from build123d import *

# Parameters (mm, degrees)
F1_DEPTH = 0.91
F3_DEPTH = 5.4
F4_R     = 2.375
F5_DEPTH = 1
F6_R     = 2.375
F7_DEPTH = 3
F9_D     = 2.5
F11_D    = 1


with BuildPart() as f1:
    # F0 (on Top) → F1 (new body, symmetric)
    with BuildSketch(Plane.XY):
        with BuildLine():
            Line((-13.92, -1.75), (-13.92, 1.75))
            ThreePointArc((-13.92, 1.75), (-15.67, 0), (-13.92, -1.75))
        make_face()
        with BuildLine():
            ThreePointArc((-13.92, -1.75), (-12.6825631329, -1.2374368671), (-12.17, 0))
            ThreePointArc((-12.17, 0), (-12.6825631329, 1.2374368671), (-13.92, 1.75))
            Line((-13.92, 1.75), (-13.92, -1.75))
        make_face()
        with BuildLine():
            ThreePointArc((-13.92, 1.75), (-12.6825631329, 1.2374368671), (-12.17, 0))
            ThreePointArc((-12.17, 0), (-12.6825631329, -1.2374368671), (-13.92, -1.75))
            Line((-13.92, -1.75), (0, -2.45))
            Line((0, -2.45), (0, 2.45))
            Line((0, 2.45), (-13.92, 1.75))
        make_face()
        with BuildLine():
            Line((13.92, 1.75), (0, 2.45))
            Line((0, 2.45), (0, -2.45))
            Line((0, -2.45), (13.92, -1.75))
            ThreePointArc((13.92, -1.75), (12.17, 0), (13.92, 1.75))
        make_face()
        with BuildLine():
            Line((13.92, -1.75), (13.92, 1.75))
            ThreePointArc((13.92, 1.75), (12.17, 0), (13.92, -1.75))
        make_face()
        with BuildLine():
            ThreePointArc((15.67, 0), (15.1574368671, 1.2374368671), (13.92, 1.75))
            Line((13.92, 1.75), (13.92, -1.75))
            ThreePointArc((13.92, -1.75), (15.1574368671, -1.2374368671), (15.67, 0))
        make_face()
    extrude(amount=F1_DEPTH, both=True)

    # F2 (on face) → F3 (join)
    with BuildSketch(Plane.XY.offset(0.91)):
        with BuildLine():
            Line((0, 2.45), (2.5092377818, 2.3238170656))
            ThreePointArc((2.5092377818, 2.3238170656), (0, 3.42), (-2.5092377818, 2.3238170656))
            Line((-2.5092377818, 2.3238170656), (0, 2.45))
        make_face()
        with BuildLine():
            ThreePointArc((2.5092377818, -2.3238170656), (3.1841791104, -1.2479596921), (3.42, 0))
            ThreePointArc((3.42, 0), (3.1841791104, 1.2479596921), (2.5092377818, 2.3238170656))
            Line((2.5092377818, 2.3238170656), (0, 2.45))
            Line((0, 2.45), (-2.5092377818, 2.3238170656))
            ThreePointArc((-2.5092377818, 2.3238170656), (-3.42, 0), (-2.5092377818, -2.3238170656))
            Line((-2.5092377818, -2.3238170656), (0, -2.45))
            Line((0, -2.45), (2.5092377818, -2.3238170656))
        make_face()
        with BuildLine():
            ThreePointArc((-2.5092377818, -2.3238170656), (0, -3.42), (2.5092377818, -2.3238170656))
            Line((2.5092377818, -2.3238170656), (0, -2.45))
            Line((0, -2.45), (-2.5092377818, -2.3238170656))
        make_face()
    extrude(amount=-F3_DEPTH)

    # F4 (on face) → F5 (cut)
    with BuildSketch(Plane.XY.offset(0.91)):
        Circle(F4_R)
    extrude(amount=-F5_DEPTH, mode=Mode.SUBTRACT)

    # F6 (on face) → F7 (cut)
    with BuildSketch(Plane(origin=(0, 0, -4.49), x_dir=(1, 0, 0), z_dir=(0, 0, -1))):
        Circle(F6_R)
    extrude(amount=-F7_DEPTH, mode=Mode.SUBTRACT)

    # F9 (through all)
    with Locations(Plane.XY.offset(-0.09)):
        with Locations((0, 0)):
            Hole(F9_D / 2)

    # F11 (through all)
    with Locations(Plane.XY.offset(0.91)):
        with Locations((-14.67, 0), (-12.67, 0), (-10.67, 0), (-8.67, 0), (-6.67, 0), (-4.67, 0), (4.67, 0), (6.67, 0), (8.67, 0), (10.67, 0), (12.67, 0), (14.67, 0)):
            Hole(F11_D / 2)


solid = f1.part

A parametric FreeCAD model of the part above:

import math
import FreeCAD as App
import Part
import Sketcher
from FreeCAD import Vector
Q = App.Units.Quantity

doc = App.newDocument("Part")
body = doc.addObject("PartDesign::Body", "Body")

sketch1 = body.newObject("Sketcher::SketchObject", "Sketch")
sketch1.AttachmentSupport = (doc.getObject("XY_Plane"), [""])
sketch1.MapMode = "FlatFace"
sketch1.addGeometry([
    Part.ArcOfCircle(Part.Circle(Vector(-13.92, 0, 0), Vector(0, 0, 1), 1.75), math.radians(90), math.radians(270)),
    Part.LineSegment(Vector(-13.92, -1.75, 0), Vector(0, -2.45, 0)),
    Part.LineSegment(Vector(0, -2.45, 0), Vector(13.92, -1.75, 0)),
    Part.ArcOfCircle(Part.Circle(Vector(13.92, 0, 0), Vector(0, 0, 1), 1.75), math.radians(-90), math.radians(0)),
    Part.ArcOfCircle(Part.Circle(Vector(13.92, 0, 0), Vector(0, 0, 1), 1.75), math.radians(0), math.radians(90)),
    Part.LineSegment(Vector(13.92, 1.75, 0), Vector(0, 2.45, 0)),
    Part.LineSegment(Vector(0, 2.45, 0), Vector(-13.92, 1.75, 0)),
], False)
sketch1.addConstraint([
    Sketcher.Constraint("Coincident", 0, 2, 1, 1),
    Sketcher.Constraint("Coincident", 1, 2, 2, 1),
    Sketcher.Constraint("Coincident", 2, 2, 3, 1),
    Sketcher.Constraint("Tangent", 3, 2, 4, 1),
    Sketcher.Constraint("Coincident", 4, 2, 5, 1),
    Sketcher.Constraint("Coincident", 5, 2, 6, 1),
    Sketcher.Constraint("Coincident", 6, 2, 0, 1),
    Sketcher.Constraint("Equal", 0, 3),
    Sketcher.Constraint("Equal", 3, 4),
    Sketcher.Constraint("Symmetric", 0, 3, 3, 3, -1, 1),
    Sketcher.Constraint("Symmetric", 1, 2, 5, 2, -1, 1),
    Sketcher.Constraint("Symmetric", 0, 2, 2, 2, -2),
    Sketcher.Constraint("PointOnObject", 1, 2, -2),
    Sketcher.Constraint("PointOnObject", 3, 2, -1),
    Sketcher.Constraint("Parallel", 1, 5),
    Sketcher.Constraint("Parallel", 2, 6),
    Sketcher.Constraint("Vertical", 4, 3, 2, 2),
    Sketcher.Constraint("Radius", 0, Q("1.75 mm")),
    Sketcher.Constraint("DistanceY", 1, 2, 0, 2, Q("0.7 mm")),
    Sketcher.Constraint("DistanceX", 0, 3, -1, 1, Q("13.92 mm")),
])
pad1 = body.newObject("PartDesign::Pad", "Pad")
pad1.Profile = sketch1
pad1.Length = 1.82
pad1.Midplane = True

sketch2 = body.newObject("Sketcher::SketchObject", "Sketch001")
sketch2.AttachmentSupport = (doc.getObject("XY_Plane"), [""])
sketch2.MapMode = "FlatFace"
sketch2.AttachmentOffset = App.Placement(Vector(0, 0, 0.91), App.Rotation())
sketch2.addGeometry([
    Part.ArcOfCircle(Part.Circle(Vector(0, 0, 0), Vector(0, 0, 1), 3.42), math.radians(42.802918), math.radians(137.197082)),
    Part.ArcOfCircle(Part.Circle(Vector(0, 0, 0), Vector(0, 0, 1), 3.42), math.radians(137.197082), math.radians(222.802918)),
    Part.ArcOfCircle(Part.Circle(Vector(0, 0, 0), Vector(0, 0, 1), 3.42), math.radians(-137.197082), math.radians(-42.802918)),
    Part.ArcOfCircle(Part.Circle(Vector(0, 0, 0), Vector(0, 0, 1), 3.42), math.radians(-42.802918), math.radians(0)),
    Part.ArcOfCircle(Part.Circle(Vector(0, 0, 0), Vector(0, 0, 1), 3.42), math.radians(0), math.radians(42.802918)),
], False)
sketch2.addConstraint([
    Sketcher.Constraint("Tangent", 0, 2, 1, 1),
    Sketcher.Constraint("Tangent", 1, 2, 2, 1),
    Sketcher.Constraint("Tangent", 2, 2, 3, 1),
    Sketcher.Constraint("Tangent", 3, 2, 4, 1),
    Sketcher.Constraint("Tangent", 4, 2, 0, 1),
    Sketcher.Constraint("Coincident", 0, 3, -1, 1),
    Sketcher.Constraint("Coincident", 2, 3, -1, 1),
    Sketcher.Constraint("PointOnObject", 3, 2, -1),
    Sketcher.Constraint("Horizontal", 1, 2, 2, 2),
    Sketcher.Constraint("Horizontal", 0, 2, 4, 2),
    Sketcher.Constraint("Vertical", 0, 2, 1, 2),
    Sketcher.Constraint("Radius", 0, Q("3.42 mm")),
    Sketcher.Constraint("DistanceX", 0, 2, -1, 1, Q("2.509238 mm")),
])
pad2 = body.newObject("PartDesign::Pad", "Pad001")
pad2.Profile = sketch2
pad2.Length = 5.4
pad2.Reversed = True

sketch3 = body.newObject("Sketcher::SketchObject", "Sketch002")
sketch3.AttachmentSupport = (doc.getObject("XY_Plane"), [""])
sketch3.MapMode = "FlatFace"
sketch3.AttachmentOffset = App.Placement(Vector(0, 0, 0.91), App.Rotation())
sketch3.addGeometry(Part.Circle(Vector(0, 0, 0), Vector(0, 0, 1), 2.375), False)
sketch3.addConstraint([
    Sketcher.Constraint("Coincident", 0, 3, -1, 1),
    Sketcher.Constraint("Diameter", 0, Q("4.75 mm")),
])
pocket1 = body.newObject("PartDesign::Pocket", "Pocket")
pocket1.Profile = sketch3
pocket1.Length = 1

sketch4 = body.newObject("Sketcher::SketchObject", "Sketch003")
sketch4.AttachmentSupport = (doc.getObject("XY_Plane"), [""])
sketch4.MapMode = "FlatFace"
sketch4.AttachmentOffset = App.Placement(Vector(0, 0, -4.49), App.Rotation())
sketch4.addGeometry(Part.Circle(Vector(0, 0, 0), Vector(0, 0, 1), 2.375), False)
sketch4.addConstraint([
    Sketcher.Constraint("Coincident", 0, 3, -1, 1),
    Sketcher.Constraint("Diameter", 0, Q("4.75 mm")),
])
pocket2 = body.newObject("PartDesign::Pocket", "Pocket001")
pocket2.Profile = sketch4
pocket2.Length = 3
pocket2.Reversed = True

sketch5 = body.newObject("Sketcher::SketchObject", "Sketch004")
sketch5.AttachmentSupport = (doc.getObject("XY_Plane"), [""])
sketch5.MapMode = "FlatFace"
sketch5.AttachmentOffset = App.Placement(Vector(0, 0, -0.09), App.Rotation())
sketch5.addGeometry(Part.Circle(Vector(0, 0, 0), Vector(0, 0, 1), 1.25), False)
sketch5.addConstraint([
    Sketcher.Constraint("Coincident", 0, 3, -1, 1),
    Sketcher.Constraint("Diameter", 0, Q("2.5 mm")),
])
doc.recompute()
hole = body.newObject("PartDesign::Hole", "Hole")
hole.Profile = sketch5
hole.ThreadType = "None"
hole.Diameter = 2.5
hole.DepthType = "ThroughAll"

sketch6 = body.newObject("Sketcher::SketchObject", "Sketch005")
sketch6.AttachmentSupport = (doc.getObject("XY_Plane"), [""])
sketch6.MapMode = "FlatFace"
sketch6.AttachmentOffset = App.Placement(Vector(0, 0, 0.91), App.Rotation())
sketch6.addGeometry([
    Part.Circle(Vector(-14.67, 0, 0), Vector(0, 0, 1), 0.5),
    Part.Circle(Vector(-12.67, 0, 0), Vector(0, 0, 1), 0.5),
    Part.Circle(Vector(-10.67, 0, 0), Vector(0, 0, 1), 0.5),
    Part.Circle(Vector(-8.67, 0, 0), Vector(0, 0, 1), 0.5),
    Part.Circle(Vector(-6.67, 0, 0), Vector(0, 0, 1), 0.5),
    Part.Circle(Vector(-4.67, 0, 0), Vector(0, 0, 1), 0.5),
    Part.Circle(Vector(4.67, 0, 0), Vector(0, 0, 1), 0.5),
    Part.Circle(Vector(6.67, 0, 0), Vector(0, 0, 1), 0.5),
    Part.Circle(Vector(8.67, 0, 0), Vector(0, 0, 1), 0.5),
    Part.Circle(Vector(10.67, 0, 0), Vector(0, 0, 1), 0.5),
    Part.Circle(Vector(12.67, 0, 0), Vector(0, 0, 1), 0.5),
    Part.Circle(Vector(14.67, 0, 0), Vector(0, 0, 1), 0.5),
], False)
sketch6.addConstraint([
    Sketcher.Constraint("Equal", 0, 1),
    Sketcher.Constraint("Equal", 1, 2),
    Sketcher.Constraint("Equal", 2, 3),
    Sketcher.Constraint("Equal", 3, 4),
    Sketcher.Constraint("Equal", 4, 5),
    Sketcher.Constraint("Equal", 5, 6),
    Sketcher.Constraint("Equal", 6, 7),
    Sketcher.Constraint("Equal", 7, 8),
    Sketcher.Constraint("Equal", 8, 9),
    Sketcher.Constraint("Equal", 9, 10),
    Sketcher.Constraint("Equal", 10, 11),
    Sketcher.Constraint("Symmetric", 5, 3, 6, 3, -1, 1),
    Sketcher.Constraint("Symmetric", 4, 3, 7, 3, -1, 1),
    Sketcher.Constraint("Symmetric", 3, 3, 8, 3, -1, 1),
    Sketcher.Constraint("Symmetric", 2, 3, 9, 3, -1, 1),
    Sketcher.Constraint("Symmetric", 1, 3, 10, 3, -1, 1),
    Sketcher.Constraint("Symmetric", 0, 3, 11, 3, -1, 1),
    Sketcher.Constraint("PointOnObject", 0, 3, -1),
    Sketcher.Constraint("PointOnObject", 1, 3, -1),
    Sketcher.Constraint("PointOnObject", 2, 3, -1),
    Sketcher.Constraint("PointOnObject", 3, 3, -1),
    Sketcher.Constraint("PointOnObject", 4, 3, -1),
    Sketcher.Constraint("PointOnObject", 5, 3, -1),
    Sketcher.Constraint("Diameter", 0, Q("1 mm")),
    Sketcher.Constraint("DistanceX", 0, 3, 1, 3, Q("2 mm")),
    Sketcher.Constraint("DistanceX", 1, 3, 2, 3, Q("2 mm")),
    Sketcher.Constraint("DistanceX", 2, 3, 3, 3, Q("2 mm")),
    Sketcher.Constraint("DistanceX", 3, 3, 4, 3, Q("2 mm")),
    Sketcher.Constraint("DistanceX", 4, 3, 5, 3, Q("2 mm")),
    Sketcher.Constraint("DistanceX", 0, 3, -1, 1, Q("14.67 mm")),
])
doc.recompute()
hole2 = body.newObject("PartDesign::Hole", "Hole001")
hole2.Profile = sketch6
hole2.ThreadType = "None"
hole2.Diameter = 1
hole2.DepthType = "ThroughAll"

doc.recompute()
